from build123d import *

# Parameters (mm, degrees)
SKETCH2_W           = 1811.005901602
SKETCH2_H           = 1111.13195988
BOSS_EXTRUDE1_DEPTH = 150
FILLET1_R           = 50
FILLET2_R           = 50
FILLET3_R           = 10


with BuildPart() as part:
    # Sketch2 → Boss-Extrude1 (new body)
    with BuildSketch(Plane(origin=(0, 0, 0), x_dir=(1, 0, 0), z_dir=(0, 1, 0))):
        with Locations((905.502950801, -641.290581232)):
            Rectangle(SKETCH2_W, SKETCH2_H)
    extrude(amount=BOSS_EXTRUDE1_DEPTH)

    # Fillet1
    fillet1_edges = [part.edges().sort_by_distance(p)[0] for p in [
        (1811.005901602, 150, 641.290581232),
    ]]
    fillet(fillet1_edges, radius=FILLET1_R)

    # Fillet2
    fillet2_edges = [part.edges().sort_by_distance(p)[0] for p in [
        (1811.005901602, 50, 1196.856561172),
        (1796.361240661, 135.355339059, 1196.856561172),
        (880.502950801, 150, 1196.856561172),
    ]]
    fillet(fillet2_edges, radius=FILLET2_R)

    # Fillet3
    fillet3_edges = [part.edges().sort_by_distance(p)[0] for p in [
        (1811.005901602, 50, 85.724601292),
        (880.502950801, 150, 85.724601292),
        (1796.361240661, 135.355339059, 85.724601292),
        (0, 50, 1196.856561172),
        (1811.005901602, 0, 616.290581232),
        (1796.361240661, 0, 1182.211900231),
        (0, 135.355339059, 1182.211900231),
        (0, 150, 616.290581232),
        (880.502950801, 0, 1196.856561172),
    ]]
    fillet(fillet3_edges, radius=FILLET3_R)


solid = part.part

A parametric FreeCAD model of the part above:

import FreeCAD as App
import Part
import Sketcher

V = App.Vector
Q = App.Units.Quantity


def edges_at(feature, points):
    """Names of the edges that pass closest to the given points."""
    edges = feature.Shape.Edges
    near = lambda p: min(range(len(edges)), key=lambda i: edges[i].distToShape(Part.Vertex(*p))[0])
    return sorted({f"Edge{near(p) + 1}" for p in points})


def add_polygon(sketch, points):
    """Adds a closed chain of lines whose ends are joined by coincident constraints."""
    first, n = sketch.GeometryCount, len(points)
    for a, b in zip(points, points[1:] + points[:1]):
        sketch.addGeometry(Part.LineSegment(App.Vector(*a, 0), App.Vector(*b, 0)), False)
    for i in range(n):
        sketch.addConstraint(Sketcher.Constraint("Coincident", first + i, 2, first + (i + 1) % n, 1))

doc = App.newDocument("Part")
body = doc.addObject("PartDesign::Body", "Body")

# Sketch on XZ plane
sketch1 = body.newObject("Sketcher::SketchObject", "Sketch")
sketch1.AttachmentSupport = (doc.getObject("XZ_Plane"), [""])
sketch1.MapMode = "FlatFace"
add_polygon(sketch1, [(0, 86), (0, 1197), (1811, 1197), (1811, 86)])  # lines 0-3
sketch1.addConstraint([
    Sketcher.Constraint("Vertical", 0),
    Sketcher.Constraint("Horizontal", 1),
    Sketcher.Constraint("Vertical", 2),
    Sketcher.Constraint("Horizontal", 3),
    Sketcher.Constraint("PointOnObject", 0, 2, -2),
    Sketcher.Constraint("DistanceX", 1, 1, 1, 2, Q("1811.005902 mm")),
    Sketcher.Constraint("DistanceY", 0, 1, 0, 2, Q("1111.13196 mm")),
    Sketcher.Constraint("DistanceY", -1, 1, 2, 2, Q("85.724601 mm")),
])
pad1 = body.newObject("PartDesign::Pad", "Pad")
pad1.Profile = sketch1
pad1.Length = 150
pad1.Reversed = True
doc.recompute()

fillet = body.newObject("PartDesign::Fillet", "Fillet")
fillet.Base = (pad1, edges_at(pad1, [(1811.006, 150, 641.291)]))
fillet.Radius = 50
doc.recompute()

fillet2 = body.newObject("PartDesign::Fillet", "Fillet001")
fillet2.Base = (fillet, edges_at(fillet, [(1811.006, 50, 1196.857), (1796.361, 135.355, 1196.857), (880.503, 150, 1196.857)]))
fillet2.Radius = 50
doc.recompute()

fillet3 = body.newObject("PartDesign::Fillet", "Fillet002")
fillet3.Base = (fillet2, edges_at(fillet2, [
    (1811.006, 50, 85.725),
    (880.503, 150, 85.725),
    (1796.361, 135.355, 85.725),
    (0, 50, 1196.857),
    (1811.006, 0, 616.291),
    (1796.361, 0, 1182.212),
    (0, 135.355, 1182.212),
    (0, 150, 616.291),
    (880.503, 0, 1196.857),
]))
fillet3.Radius = 10

doc.recompute()
